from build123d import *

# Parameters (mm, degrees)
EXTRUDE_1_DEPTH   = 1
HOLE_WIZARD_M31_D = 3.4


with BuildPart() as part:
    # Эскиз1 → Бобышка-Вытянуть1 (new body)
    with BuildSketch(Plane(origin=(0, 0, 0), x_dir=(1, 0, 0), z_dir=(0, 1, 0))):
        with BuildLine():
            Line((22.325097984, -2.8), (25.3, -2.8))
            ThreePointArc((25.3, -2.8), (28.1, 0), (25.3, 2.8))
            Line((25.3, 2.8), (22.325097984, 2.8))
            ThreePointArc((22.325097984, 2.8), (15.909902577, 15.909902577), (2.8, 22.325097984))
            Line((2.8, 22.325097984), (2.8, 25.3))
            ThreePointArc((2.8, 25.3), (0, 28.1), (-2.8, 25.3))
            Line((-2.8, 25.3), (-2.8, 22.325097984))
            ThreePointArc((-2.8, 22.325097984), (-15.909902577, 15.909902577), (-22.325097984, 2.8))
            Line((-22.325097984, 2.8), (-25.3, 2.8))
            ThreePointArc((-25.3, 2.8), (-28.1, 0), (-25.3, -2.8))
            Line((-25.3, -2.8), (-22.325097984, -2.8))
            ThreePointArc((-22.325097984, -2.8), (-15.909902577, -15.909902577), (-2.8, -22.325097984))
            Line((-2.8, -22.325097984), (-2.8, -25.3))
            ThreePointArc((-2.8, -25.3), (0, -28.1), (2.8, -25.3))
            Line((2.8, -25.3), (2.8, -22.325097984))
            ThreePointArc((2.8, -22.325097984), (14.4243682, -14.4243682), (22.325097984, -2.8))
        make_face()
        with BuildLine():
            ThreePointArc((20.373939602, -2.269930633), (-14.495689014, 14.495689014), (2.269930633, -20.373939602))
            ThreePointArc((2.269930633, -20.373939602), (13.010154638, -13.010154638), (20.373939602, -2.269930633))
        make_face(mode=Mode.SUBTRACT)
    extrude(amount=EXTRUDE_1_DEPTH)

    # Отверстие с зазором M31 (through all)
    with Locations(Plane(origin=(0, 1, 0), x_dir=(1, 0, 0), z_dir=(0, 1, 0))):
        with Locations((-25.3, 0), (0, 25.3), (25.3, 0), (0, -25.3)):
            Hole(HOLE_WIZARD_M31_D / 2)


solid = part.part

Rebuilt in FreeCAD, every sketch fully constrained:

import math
import FreeCAD as App
import Part
import Sketcher

V = App.Vector

doc = App.newDocument("Part")
params = doc.addObject("Spreadsheet::Sheet", "Params")
for row, (alias, value) in enumerate([
    ("sketch1_radius", "2.8 mm"),
    ("sketch1_radius2", "22.5 mm"),
    ("sketch1_radius3", "20.5 mm"),
    ("pad1_length", "1 mm"),
    ("sketch2_diameter", "3.4 mm"),
    ("hole_diameter", "3.4 mm"),
], start=1):
    params.set(f"A{row}", alias)
    params.set(f"B{row}", "=" + value)
    params.setAlias(f"B{row}", alias)

body = doc.addObject("PartDesign::Body", "Body")

# Sketch on XZ plane
sketch1 = body.newObject("Sketcher::SketchObject", "Sketch")
sketch1.AttachmentSupport = (doc.getObject("XZ_Plane"), [""])
sketch1.MapMode = "FlatFace"
sketch1.addGeometry(Part.LineSegment(V(22.3, 2.8, 0), V(25.3, 2.8, 0)), False)
sketch1.addGeometry(Part.ArcOfCircle(Part.Circle(V(25.3, 0, 0), V(0, 0, 1), 2.8), math.radians(-90), math.radians(90)), False)
sketch1.addGeometry(Part.LineSegment(V(25.3, -2.8, 0), V(22.3, -2.8, 0)), False)
sketch1.addGeometry(Part.ArcOfCircle(Part.Circle(V(0, 0, 0), V(0, 0, 1), 22.5), math.radians(-83), math.radians(-7)), False)
sketch1.addGeometry(Part.LineSegment(V(2.8, -22.3, 0), V(2.8, -25.3, 0)), False)
sketch1.addGeometry(Part.ArcOfCircle(Part.Circle(V(0, -25.3, 0), V(0, 0, 1), 2.8), math.radians(180), math.radians(360)), False)
sketch1.addGeometry(Part.LineSegment(V(-2.8, -25.3, 0), V(-2.8, -22.3, 0)), False)
sketch1.addGeometry(Part.ArcOfCircle(Part.Circle(V(0, 0, 0), V(0, 0, 1), 22.5), math.radians(-173), math.radians(-97)), False)
sketch1.addGeometry(Part.LineSegment(V(-22.3, -2.8, 0), V(-25.3, -2.8, 0)), False)
sketch1.addGeometry(Part.ArcOfCircle(Part.Circle(V(-25.3, 0, 0), V(0, 0, 1), 2.8), math.radians(90), math.radians(270)), False)
sketch1.addGeometry(Part.LineSegment(V(-25.3, 2.8, 0), V(-22.3, 2.8, 0)), False)
sketch1.addGeometry(Part.ArcOfCircle(Part.Circle(V(0, 0, 0), V(0, 0, 1), 22.5), math.radians(97), math.radians(173)), False)
sketch1.addGeometry(Part.LineSegment(V(-2.8, 22.3, 0), V(-2.8, 25.3, 0)), False)
sketch1.addGeometry(Part.ArcOfCircle(Part.Circle(V(0, 25.3, 0), V(0, 0, 1), 2.8), math.radians(0), math.radians(180)), False)
sketch1.addGeometry(Part.LineSegment(V(2.8, 25.3, 0), V(2.8, 22.3, 0)), False)
sketch1.addGeometry(Part.ArcOfCircle(Part.Circle(V(-12.1, -12.1, 0), V(0, 0, 1), 37.5), math.radians(23), math.radians(67)), False)
sketch1.addGeometry(Part.ArcOfCircle(Part.Circle(V(0, 0, 0), V(0, 0, 1), 20.5), math.radians(84), math.radians(366)), False)
sketch1.addGeometry(Part.ArcOfCircle(Part.Circle(V(-12.1, -12.1, 0), V(0, 0, 1), 35.5), math.radians(24), math.radians(66)), False)
sketch1.addConstraint(Sketcher.Constraint("Tangent", 0, 2, 1, 2))
sketch1.addConstraint(Sketcher.Constraint("Tangent", 1, 1, 2, 1))
sketch1.addConstraint(Sketcher.Constraint("Coincident", 2, 2, 3, 2))
sketch1.addConstraint(Sketcher.Constraint("Coincident", 3, 1, 4, 1))
sketch1.addConstraint(Sketcher.Constraint("Tangent", 4, 2, 5, 2))
sketch1.addConstraint(Sketcher.Constraint("Tangent", 5, 1, 6, 1))
sketch1.addConstraint(Sketcher.Constraint("Coincident", 6, 2, 7, 2))
sketch1.addConstraint(Sketcher.Constraint("Coincident", 7, 1, 8, 1))
sketch1.addConstraint(Sketcher.Constraint("Tangent", 8, 2, 9, 2))
sketch1.addConstraint(Sketcher.Constraint("Tangent", 9, 1, 10, 1))
sketch1.addConstraint(Sketcher.Constraint("Coincident", 10, 2, 11, 2))
sketch1.addConstraint(Sketcher.Constraint("Coincident", 11, 1, 12, 1))
sketch1.addConstraint(Sketcher.Constraint("Tangent", 12, 2, 13, 2))
sketch1.addConstraint(Sketcher.Constraint("Tangent", 13, 1, 14, 1))
sketch1.addConstraint(Sketcher.Constraint("Coincident", 14, 2, 15, 2))
sketch1.addConstraint(Sketcher.Constraint("Coincident", 15, 1, 0, 1))
sketch1.addConstraint(Sketcher.Constraint("Coincident", 16, 1, 17, 2))
sketch1.addConstraint(Sketcher.Constraint("Coincident", 17, 1, 16, 2))
sketch1.addConstraint(Sketcher.Constraint("Horizontal", 0))
sketch1.addConstraint(Sketcher.Constraint("Horizontal", 2))
sketch1.addConstraint(Sketcher.Constraint("Vertical", 4))
sketch1.addConstraint(Sketcher.Constraint("Vertical", 6))
sketch1.addConstraint(Sketcher.Constraint("Horizontal", 8))
sketch1.addConstraint(Sketcher.Constraint("Horizontal", 10))
sketch1.addConstraint(Sketcher.Constraint("Vertical", 12))
sketch1.addConstraint(Sketcher.Constraint("Vertical", 14))
sketch1.addConstraint(Sketcher.Constraint("Coincident", 3, 3, -1, 1))
sketch1.addConstraint(Sketcher.Constraint("Coincident", 7, 3, -1, 1))
sketch1.addConstraint(Sketcher.Constraint("Coincident", 11, 3, -1, 1))
sketch1.addConstraint(Sketcher.Constraint("Coincident", 16, 3, -1, 1))
sketch1.addConstraint(Sketcher.Constraint("Coincident", 17, 3, 15, 3))
sketch1.addConstraint(Sketcher.Constraint("Equal", 1, 5))
sketch1.addConstraint(Sketcher.Constraint("Equal", 3, 7))
sketch1.addConstraint(Sketcher.Constraint("Equal", 5, 9))
sketch1.addConstraint(Sketcher.Constraint("Equal", 7, 11))
sketch1.addConstraint(Sketcher.Constraint("Equal", 9, 13))
sketch1.addConstraint(Sketcher.Constraint("Symmetric", 1, 3, 9, 3, -1, 1))
sketch1.addConstraint(Sketcher.Constraint("Symmetric", 5, 3, 13, 3, -1, 1))
sketch1.addConstraint(Sketcher.Constraint("Symmetric", 11, 1, 14, 2, -2))
sketch1.addConstraint(Sketcher.Constraint("Symmetric", 10, 2, 15, 1, -2))
sketch1.addConstraint(Sketcher.Constraint("Equal", 10, 4))
sketch1.addConstraint(Sketcher.Constraint("Radius", 1, 2.8))
sketch1.addConstraint(Sketcher.Constraint("Radius", 3, 22.5))
sketch1.addConstraint(Sketcher.Constraint("Radius", 16, 20.5))
sketch1.addConstraint(Sketcher.Constraint("DistanceX", -1, 1, 1, 3, 25.3))
sketch1.addConstraint(Sketcher.Constraint("Radius", 15, 37.513619))
sketch1.addConstraint(Sketcher.Constraint("Radius", 17, 35.513619))
sketch1.setExpression("Constraints[41]", "Params.sketch1_radius")
sketch1.setExpression("Constraints[42]", "Params.sketch1_radius2")
sketch1.setExpression("Constraints[43]", "Params.sketch1_radius3")
pad1 = body.newObject("PartDesign::Pad", "Pad")
pad1.Profile = sketch1
pad1.setExpression("Length", "Params.pad1_length")
pad1.Reversed = True

# Sketch on XZ plane
sketch2 = body.newObject("Sketcher::SketchObject", "Sketch001")
sketch2.AttachmentSupport = (doc.getObject("XZ_Plane"), [""])
sketch2.MapMode = "FlatFace"
sketch2.AttachmentOffset = App.Placement(V(0, 0, -1), App.Rotation())
sketch2.addGeometry(Part.Circle(V(-25.3, 0, 0), V(0, 0, 1), 1.7), False)
sketch2.addGeometry(Part.Circle(V(0, -25.3, 0), V(0, 0, 1), 1.7), False)
sketch2.addGeometry(Part.Circle(V(25.3, 0, 0), V(0, 0, 1), 1.7), False)
sketch2.addGeometry(Part.Circle(V(0, 25.3, 0), V(0, 0, 1), 1.7), False)
sketch2.addConstraint(Sketcher.Constraint("Equal", 0, 1))
sketch2.addConstraint(Sketcher.Constraint("Equal", 1, 2))
sketch2.addConstraint(Sketcher.Constraint("Equal", 2, 3))
sketch2.addConstraint(Sketcher.Constraint("Symmetric", 0, 3, 2, 3, -1, 1))
sketch2.addConstraint(Sketcher.Constraint("Symmetric", 1, 3, 3, 3, -1, 1))
sketch2.addConstraint(Sketcher.Constraint("PointOnObject", 0, 3, -1))
sketch2.addConstraint(Sketcher.Constraint("PointOnObject", 1, 3, -2))
sketch2.addConstraint(Sketcher.Constraint("Diameter", 0, 3.4))
sketch2.addConstraint(Sketcher.Constraint("DistanceX", 0, 3, -1, 1, 25.3))
sketch2.addConstraint(Sketcher.Constraint("DistanceY", 1, 3, -1, 1, 25.3))
sketch2.setExpression("Constraints[7]", "Params.sketch2_diameter")
doc.recompute()
hole = body.newObject("PartDesign::Hole", "Hole")
hole.Profile = sketch2
hole.ThreadType = "None"
hole.setExpression("Diameter", "Params.hole_diameter")
hole.DepthType = "ThroughAll"
hole.Reversed = True

doc.recompute()
